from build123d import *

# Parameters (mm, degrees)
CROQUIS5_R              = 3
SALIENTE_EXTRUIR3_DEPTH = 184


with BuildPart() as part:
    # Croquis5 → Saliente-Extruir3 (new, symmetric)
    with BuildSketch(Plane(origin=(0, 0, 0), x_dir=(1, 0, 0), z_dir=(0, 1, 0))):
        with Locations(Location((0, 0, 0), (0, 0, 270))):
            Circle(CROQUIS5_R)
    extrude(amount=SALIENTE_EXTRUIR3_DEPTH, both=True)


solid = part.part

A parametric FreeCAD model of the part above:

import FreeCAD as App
import Part
import Sketcher
from FreeCAD import Vector

doc = App.newDocument("Part")
body = doc.addObject("PartDesign::Body", "Body")

# Sketch on XZ plane
sketch1 = body.newObject("Sketcher::SketchObject", "Sketch")
sketch1.AttachmentSupport = (doc.getObject("XZ_Plane"), [""])
sketch1.MapMode = "FlatFace"
sketch1.addGeometry(Part.Circle(Vector(0, 0, 0), Vector(0, 0, 1), 3), False)
sketch1.addConstraint([
    Sketcher.Constraint("Coincident", 0, 3, -1, 1),
    Sketcher.Constraint("Diameter", 0, 6.0),
])
pad1 = body.newObject("PartDesign::Pad", "Pad")
pad1.Profile = sketch1
pad1.Length = 368
pad1.Midplane = True

doc.recompute()
